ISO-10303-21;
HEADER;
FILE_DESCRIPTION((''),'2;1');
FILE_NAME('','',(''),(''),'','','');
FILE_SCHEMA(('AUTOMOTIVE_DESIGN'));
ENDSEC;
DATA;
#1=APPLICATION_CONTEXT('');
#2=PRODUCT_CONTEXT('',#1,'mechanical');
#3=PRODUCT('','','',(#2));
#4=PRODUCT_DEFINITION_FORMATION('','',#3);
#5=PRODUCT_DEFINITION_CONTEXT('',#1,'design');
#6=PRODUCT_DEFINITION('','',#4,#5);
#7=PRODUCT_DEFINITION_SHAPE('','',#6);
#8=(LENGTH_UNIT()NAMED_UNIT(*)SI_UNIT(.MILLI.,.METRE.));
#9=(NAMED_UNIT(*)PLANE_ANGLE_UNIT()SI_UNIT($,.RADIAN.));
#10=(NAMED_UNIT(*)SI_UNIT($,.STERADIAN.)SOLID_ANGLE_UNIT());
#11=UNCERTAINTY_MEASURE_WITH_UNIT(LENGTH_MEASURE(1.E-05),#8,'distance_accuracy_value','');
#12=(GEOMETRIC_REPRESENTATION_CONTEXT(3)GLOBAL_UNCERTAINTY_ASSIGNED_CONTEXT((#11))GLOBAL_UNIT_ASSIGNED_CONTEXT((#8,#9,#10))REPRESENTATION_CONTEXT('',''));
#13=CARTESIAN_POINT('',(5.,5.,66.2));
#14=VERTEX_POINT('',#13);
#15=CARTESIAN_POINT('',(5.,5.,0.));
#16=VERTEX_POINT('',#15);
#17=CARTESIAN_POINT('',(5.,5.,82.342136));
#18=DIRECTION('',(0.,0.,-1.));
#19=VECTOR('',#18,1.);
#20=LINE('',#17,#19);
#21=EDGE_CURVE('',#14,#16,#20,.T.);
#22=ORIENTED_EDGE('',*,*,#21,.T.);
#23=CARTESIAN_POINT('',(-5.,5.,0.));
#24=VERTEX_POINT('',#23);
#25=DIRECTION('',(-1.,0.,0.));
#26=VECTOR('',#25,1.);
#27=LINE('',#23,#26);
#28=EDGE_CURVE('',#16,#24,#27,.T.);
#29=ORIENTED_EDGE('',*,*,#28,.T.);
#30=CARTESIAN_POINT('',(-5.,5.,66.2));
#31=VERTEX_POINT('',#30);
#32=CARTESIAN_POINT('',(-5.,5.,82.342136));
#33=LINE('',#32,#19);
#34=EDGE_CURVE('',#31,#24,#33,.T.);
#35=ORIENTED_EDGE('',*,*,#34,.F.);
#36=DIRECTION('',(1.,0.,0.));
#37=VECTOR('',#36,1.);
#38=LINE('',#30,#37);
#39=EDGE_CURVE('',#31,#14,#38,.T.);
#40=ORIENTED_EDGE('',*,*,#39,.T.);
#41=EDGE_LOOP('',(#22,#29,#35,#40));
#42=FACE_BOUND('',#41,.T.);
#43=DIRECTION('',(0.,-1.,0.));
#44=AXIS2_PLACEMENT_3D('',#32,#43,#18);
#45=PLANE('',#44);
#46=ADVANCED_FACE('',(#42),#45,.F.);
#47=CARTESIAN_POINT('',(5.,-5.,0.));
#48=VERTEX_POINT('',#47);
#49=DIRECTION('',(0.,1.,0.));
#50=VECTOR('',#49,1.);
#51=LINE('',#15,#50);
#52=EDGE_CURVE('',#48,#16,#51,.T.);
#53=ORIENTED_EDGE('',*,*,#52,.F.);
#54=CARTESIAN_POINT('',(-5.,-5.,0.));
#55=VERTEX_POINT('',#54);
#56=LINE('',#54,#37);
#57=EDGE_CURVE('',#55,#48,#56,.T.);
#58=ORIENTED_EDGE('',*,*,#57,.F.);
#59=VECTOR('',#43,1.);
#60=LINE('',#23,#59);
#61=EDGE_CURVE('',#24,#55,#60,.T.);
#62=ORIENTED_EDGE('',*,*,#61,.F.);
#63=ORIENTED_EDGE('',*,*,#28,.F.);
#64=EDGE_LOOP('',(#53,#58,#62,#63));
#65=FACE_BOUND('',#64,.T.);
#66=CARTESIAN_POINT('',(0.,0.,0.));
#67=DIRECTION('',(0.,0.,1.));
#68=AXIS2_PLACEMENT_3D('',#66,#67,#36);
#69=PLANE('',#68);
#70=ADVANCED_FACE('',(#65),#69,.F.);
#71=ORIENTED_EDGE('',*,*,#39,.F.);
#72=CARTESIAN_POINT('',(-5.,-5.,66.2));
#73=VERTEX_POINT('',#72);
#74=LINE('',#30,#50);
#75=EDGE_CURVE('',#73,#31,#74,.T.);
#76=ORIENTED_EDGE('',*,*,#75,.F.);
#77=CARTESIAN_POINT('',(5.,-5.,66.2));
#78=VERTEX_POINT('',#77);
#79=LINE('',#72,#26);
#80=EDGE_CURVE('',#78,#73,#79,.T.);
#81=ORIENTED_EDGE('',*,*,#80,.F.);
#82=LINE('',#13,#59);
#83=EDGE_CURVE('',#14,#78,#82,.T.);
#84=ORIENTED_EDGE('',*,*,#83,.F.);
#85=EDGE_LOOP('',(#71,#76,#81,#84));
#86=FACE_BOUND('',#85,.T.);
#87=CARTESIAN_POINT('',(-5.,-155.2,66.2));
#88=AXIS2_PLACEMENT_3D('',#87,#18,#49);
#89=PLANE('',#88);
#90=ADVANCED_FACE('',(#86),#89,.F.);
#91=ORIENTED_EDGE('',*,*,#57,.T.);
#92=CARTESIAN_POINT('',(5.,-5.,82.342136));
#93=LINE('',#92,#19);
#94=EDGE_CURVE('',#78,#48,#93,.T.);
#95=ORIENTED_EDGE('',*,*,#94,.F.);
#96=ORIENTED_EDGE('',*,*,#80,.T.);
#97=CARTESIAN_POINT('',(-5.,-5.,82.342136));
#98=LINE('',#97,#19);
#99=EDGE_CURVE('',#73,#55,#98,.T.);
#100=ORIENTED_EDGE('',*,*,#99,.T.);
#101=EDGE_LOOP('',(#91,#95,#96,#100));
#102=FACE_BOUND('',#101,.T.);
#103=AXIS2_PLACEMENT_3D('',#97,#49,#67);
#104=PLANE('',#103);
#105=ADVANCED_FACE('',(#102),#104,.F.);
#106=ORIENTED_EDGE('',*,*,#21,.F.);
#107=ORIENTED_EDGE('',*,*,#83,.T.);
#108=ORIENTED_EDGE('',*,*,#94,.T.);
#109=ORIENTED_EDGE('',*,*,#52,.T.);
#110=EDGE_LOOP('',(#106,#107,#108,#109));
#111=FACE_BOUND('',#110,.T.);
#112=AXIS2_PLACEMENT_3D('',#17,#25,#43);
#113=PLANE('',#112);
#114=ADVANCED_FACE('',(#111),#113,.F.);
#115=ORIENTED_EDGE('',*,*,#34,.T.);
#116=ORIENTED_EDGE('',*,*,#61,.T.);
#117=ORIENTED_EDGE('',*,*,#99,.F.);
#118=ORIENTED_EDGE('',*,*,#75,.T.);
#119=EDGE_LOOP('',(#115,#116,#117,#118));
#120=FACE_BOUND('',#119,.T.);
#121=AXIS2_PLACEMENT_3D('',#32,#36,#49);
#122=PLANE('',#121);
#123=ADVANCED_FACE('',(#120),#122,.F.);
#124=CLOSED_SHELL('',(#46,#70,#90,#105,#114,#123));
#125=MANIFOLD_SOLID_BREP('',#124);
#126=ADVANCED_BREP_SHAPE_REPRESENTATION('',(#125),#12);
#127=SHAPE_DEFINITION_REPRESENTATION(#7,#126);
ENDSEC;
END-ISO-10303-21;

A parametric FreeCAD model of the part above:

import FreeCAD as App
import Part
import Sketcher

V = App.Vector


def add_polygon(sketch, points):
    """Adds a closed chain of lines whose ends are joined by coincident constraints."""
    first, n = sketch.GeometryCount, len(points)
    for a, b in zip(points, points[1:] + points[:1]):
        sketch.addGeometry(Part.LineSegment(App.Vector(*a, 0), App.Vector(*b, 0)), False)
    for i in range(n):
        sketch.addConstraint(Sketcher.Constraint("Coincident", first + i, 2, first + (i + 1) % n, 1))

doc = App.newDocument("Part")
params = doc.addObject("Spreadsheet::Sheet", "Params")
for row, (alias, value) in enumerate([
    ("sketch1_width", "10 mm"),
    ("pad1_length", "66.2 mm"),
], start=1):
    params.set(f"A{row}", alias)
    params.set(f"B{row}", "=" + value)
    params.setAlias(f"B{row}", alias)

body = doc.addObject("PartDesign::Body", "Body")

# Sketch on XY plane
sketch1 = body.newObject("Sketcher::SketchObject", "Sketch")
sketch1.AttachmentSupport = (doc.getObject("XY_Plane"), [""])
sketch1.MapMode = "FlatFace"
add_polygon(sketch1, [(-5, 5), (-5, -5), (5, -5), (5, 5)])  # lines 0-3
sketch1.addConstraint([
    Sketcher.Constraint("Vertical", 0),
    Sketcher.Constraint("Horizontal", 1),
    Sketcher.Constraint("Vertical", 2),
    Sketcher.Constraint("Horizontal", 3),
    Sketcher.Constraint("Symmetric", 0, 2, 2, 2, -1, 1),
    Sketcher.Constraint("Equal", 3, 0),
    Sketcher.Constraint("DistanceX", 1, 1, 1, 2, 10.0),
])
sketch1.setExpression("Constraints[10]", "Params.sketch1_width")
pad1 = body.newObject("PartDesign::Pad", "Pad")
pad1.Profile = sketch1
pad1.setExpression("Length", "Params.pad1_length")

doc.recompute()
